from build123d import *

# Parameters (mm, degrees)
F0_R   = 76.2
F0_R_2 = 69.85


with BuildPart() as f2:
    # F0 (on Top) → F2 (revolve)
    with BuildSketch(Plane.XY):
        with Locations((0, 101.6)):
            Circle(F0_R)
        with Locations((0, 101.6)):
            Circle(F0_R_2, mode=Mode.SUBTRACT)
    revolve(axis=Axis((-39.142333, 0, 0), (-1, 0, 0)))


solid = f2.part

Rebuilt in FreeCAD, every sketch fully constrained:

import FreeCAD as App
import Part
import Sketcher
Q = App.Units.Quantity

doc = App.newDocument("Part")
body = doc.addObject("PartDesign::Body", "Body")

# Sketch on XY plane
sketch1 = body.newObject("Sketcher::SketchObject", "Sketch")
sketch1.AttachmentSupport = (doc.getObject("XY_Plane"), [""])
sketch1.MapMode = "FlatFace"
sketch1.addGeometry([
    Part.Circle(App.Vector(0, 102, 0), App.Vector(0, 0, 1), 76),
    Part.Circle(App.Vector(0, 102, 0), App.Vector(0, 0, 1), 70),
], False)
sketch1.addConstraint([
    Sketcher.Constraint("Coincident", 1, 3, 0, 3),
    Sketcher.Constraint("PointOnObject", 0, 3, -2),
    Sketcher.Constraint("Diameter", 0, Q("6 in")),
    Sketcher.Constraint("Diameter", 1, Q("5.5 in")),
    Sketcher.Constraint("DistanceY", -1, 1, 0, 3, Q("4 in")),
])
revolution = body.newObject("PartDesign::Revolution", "Revolution")
revolution.Profile = sketch1
revolution.ReferenceAxis = (sketch1, ["H_Axis"])
revolution.Angle = 360

doc.recompute()
